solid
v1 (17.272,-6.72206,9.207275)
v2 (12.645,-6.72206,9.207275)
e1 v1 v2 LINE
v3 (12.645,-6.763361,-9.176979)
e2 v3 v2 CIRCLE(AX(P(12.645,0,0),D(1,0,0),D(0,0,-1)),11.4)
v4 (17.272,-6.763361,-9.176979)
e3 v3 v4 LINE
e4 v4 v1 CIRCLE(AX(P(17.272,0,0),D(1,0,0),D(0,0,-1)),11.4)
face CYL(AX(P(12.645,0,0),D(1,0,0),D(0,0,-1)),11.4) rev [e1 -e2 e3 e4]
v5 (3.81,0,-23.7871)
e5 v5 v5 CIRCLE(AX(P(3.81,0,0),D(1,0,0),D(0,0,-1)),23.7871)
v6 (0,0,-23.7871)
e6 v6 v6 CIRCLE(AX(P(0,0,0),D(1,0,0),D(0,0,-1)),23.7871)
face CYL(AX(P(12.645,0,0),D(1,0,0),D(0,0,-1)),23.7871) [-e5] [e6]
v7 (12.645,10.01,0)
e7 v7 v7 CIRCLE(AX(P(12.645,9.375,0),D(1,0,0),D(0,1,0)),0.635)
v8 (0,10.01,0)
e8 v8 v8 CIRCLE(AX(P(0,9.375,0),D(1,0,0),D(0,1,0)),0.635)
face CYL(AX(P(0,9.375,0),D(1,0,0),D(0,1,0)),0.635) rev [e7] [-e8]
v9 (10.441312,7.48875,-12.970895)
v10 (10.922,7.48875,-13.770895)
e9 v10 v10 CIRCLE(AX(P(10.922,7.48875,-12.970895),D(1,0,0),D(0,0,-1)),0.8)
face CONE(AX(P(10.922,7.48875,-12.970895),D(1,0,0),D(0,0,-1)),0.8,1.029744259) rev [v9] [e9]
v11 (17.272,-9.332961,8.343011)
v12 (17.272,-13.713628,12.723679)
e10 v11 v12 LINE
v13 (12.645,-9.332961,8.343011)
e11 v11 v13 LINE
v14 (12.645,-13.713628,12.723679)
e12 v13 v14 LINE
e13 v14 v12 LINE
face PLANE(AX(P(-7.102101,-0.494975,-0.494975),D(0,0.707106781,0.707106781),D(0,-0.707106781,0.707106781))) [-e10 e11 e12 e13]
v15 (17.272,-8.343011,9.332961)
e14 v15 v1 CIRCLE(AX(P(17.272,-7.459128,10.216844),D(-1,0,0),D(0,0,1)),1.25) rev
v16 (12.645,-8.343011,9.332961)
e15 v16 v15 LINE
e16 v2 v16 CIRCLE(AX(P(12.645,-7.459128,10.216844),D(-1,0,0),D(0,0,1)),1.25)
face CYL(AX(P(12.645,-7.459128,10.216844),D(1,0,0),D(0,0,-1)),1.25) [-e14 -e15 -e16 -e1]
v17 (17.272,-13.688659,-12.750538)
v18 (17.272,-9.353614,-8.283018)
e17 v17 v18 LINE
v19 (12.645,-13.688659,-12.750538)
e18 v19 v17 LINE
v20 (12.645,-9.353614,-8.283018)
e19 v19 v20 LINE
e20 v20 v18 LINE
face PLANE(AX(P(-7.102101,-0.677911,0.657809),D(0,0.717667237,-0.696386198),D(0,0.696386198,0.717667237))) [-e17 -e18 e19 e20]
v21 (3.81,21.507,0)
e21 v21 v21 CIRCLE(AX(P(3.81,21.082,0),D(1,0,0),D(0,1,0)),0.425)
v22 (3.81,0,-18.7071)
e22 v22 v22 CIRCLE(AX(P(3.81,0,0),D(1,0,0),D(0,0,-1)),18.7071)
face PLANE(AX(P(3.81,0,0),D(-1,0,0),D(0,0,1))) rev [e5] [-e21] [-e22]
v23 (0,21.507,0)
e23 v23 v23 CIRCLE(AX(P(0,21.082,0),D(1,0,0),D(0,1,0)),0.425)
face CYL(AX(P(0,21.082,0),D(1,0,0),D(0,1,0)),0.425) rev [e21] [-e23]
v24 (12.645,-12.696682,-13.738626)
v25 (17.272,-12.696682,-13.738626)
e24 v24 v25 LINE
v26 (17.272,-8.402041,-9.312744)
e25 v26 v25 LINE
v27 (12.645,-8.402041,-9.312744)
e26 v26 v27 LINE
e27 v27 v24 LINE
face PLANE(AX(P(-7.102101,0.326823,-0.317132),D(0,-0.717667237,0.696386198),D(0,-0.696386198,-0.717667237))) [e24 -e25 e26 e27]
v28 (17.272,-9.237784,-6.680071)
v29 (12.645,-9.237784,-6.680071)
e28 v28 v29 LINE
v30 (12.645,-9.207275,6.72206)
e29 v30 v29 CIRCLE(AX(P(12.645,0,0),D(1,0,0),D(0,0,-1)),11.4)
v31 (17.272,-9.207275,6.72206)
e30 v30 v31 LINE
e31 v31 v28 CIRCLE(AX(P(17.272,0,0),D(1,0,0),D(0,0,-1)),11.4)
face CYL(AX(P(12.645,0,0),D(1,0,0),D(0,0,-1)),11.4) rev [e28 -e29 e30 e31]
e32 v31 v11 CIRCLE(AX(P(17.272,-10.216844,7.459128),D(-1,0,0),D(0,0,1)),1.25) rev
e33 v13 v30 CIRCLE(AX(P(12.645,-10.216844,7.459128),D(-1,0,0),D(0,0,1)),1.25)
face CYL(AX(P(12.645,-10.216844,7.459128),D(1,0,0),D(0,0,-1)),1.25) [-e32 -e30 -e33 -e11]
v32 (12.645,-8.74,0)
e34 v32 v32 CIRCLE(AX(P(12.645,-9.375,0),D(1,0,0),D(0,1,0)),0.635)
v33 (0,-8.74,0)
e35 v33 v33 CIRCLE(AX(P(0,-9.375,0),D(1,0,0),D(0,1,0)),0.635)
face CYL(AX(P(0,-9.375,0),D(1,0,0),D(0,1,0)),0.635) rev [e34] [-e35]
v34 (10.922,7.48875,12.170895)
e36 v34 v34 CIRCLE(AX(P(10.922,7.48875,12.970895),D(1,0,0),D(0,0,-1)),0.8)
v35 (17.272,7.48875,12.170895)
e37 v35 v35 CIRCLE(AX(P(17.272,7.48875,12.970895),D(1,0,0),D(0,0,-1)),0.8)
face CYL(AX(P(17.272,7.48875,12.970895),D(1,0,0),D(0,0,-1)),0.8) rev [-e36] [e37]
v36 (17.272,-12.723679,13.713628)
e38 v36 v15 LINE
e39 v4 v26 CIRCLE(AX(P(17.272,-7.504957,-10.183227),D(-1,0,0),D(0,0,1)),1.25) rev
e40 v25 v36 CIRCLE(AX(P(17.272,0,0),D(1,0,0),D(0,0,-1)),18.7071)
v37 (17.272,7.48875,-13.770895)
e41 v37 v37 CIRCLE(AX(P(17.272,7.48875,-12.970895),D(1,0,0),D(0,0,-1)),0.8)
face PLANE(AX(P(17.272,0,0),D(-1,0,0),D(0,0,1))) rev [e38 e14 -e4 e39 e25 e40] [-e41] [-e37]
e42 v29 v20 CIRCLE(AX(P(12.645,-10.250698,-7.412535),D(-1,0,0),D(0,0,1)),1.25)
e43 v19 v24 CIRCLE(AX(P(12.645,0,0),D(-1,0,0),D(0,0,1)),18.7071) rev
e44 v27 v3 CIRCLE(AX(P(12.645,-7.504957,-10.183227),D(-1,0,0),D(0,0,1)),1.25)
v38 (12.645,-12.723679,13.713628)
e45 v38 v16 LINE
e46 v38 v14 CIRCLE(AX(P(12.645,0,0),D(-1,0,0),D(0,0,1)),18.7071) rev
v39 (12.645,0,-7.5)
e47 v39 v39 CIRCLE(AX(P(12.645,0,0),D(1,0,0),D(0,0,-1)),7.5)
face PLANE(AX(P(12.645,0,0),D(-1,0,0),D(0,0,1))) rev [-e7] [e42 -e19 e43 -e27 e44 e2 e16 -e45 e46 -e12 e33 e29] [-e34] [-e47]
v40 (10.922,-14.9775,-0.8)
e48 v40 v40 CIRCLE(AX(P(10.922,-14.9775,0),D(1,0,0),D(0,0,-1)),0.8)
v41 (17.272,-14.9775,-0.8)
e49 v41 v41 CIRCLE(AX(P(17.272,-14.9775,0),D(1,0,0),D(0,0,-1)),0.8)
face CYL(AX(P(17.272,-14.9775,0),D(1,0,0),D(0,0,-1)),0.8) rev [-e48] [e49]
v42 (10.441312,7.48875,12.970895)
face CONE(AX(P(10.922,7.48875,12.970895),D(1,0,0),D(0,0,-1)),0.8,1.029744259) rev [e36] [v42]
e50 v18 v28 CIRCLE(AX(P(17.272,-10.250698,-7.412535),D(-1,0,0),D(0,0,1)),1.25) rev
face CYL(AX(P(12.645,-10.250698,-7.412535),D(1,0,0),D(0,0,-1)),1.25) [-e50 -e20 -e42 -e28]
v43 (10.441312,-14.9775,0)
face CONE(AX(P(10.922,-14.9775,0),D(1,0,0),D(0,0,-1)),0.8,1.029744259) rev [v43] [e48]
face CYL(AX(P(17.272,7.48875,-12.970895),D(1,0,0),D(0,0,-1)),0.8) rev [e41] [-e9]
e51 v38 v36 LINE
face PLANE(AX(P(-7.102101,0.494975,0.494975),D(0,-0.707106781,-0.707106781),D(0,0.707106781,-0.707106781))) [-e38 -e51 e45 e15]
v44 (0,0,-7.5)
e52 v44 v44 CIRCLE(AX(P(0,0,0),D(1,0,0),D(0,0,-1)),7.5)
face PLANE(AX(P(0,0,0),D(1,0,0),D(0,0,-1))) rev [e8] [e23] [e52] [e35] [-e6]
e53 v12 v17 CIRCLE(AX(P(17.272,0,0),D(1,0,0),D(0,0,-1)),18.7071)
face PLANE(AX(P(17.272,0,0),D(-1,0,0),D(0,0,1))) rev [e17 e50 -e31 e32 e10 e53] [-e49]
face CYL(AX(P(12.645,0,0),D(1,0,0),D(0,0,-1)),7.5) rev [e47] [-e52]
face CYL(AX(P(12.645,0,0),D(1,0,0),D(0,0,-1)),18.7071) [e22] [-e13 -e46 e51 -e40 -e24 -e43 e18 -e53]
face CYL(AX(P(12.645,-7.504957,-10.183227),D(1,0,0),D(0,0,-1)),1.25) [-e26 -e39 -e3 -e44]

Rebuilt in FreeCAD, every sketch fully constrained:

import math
import FreeCAD as App
import Part
import Sketcher
from FreeCAD import Vector
Q = App.Units.Quantity


def edges_at(feature, points):
    """Names of the edges that pass closest to the given points."""
    edges = feature.Shape.Edges
    near = lambda p: min(range(len(edges)), key=lambda i: edges[i].distToShape(Part.Vertex(*p))[0])
    return sorted({f"Edge{near(p) + 1}" for p in points})

doc = App.newDocument("Part")
body = doc.addObject("PartDesign::Body", "Body")

sketch1 = body.newObject("Sketcher::SketchObject", "Sketch")
sketch1.AttachmentSupport = (doc.getObject("XY_Plane"), [""])
sketch1.MapMode = "FlatFace"
sketch1.addGeometry(Part.LineSegment(Vector(0, 23.8, 0), Vector(0, 7.5, 0)), False)
sketch1.addGeometry(Part.LineSegment(Vector(0, 7.5, 0), Vector(12.6, 7.5, 0)), False)
sketch1.addGeometry(Part.LineSegment(Vector(12.6, 7.5, 0), Vector(12.6, 11.4, 0)), False)
sketch1.addGeometry(Part.LineSegment(Vector(12.6, 11.4, 0), Vector(17.3, 11.4, 0)), False)
sketch1.addGeometry(Part.LineSegment(Vector(17.3, 11.4, 0), Vector(17.3, 18.7, 0)), False)
sketch1.addGeometry(Part.LineSegment(Vector(17.3, 18.7, 0), Vector(3.8, 18.7, 0)), False)
sketch1.addGeometry(Part.LineSegment(Vector(3.8, 18.7, 0), Vector(3.8, 23.8, 0)), False)
sketch1.addGeometry(Part.LineSegment(Vector(3.8, 23.8, 0), Vector(0, 23.8, 0)), False)
sketch1.addConstraint(Sketcher.Constraint("Coincident", 0, 2, 1, 1))
sketch1.addConstraint(Sketcher.Constraint("Coincident", 1, 2, 2, 1))
sketch1.addConstraint(Sketcher.Constraint("Coincident", 2, 2, 3, 1))
sketch1.addConstraint(Sketcher.Constraint("Coincident", 3, 2, 4, 1))
sketch1.addConstraint(Sketcher.Constraint("Coincident", 4, 2, 5, 1))
sketch1.addConstraint(Sketcher.Constraint("Coincident", 5, 2, 6, 1))
sketch1.addConstraint(Sketcher.Constraint("Coincident", 6, 2, 7, 1))
sketch1.addConstraint(Sketcher.Constraint("Coincident", 7, 2, 0, 1))
sketch1.addConstraint(Sketcher.Constraint("Vertical", 0))
sketch1.addConstraint(Sketcher.Constraint("Horizontal", 1))
sketch1.addConstraint(Sketcher.Constraint("Vertical", 2))
sketch1.addConstraint(Sketcher.Constraint("Horizontal", 3))
sketch1.addConstraint(Sketcher.Constraint("Vertical", 4))
sketch1.addConstraint(Sketcher.Constraint("Horizontal", 5))
sketch1.addConstraint(Sketcher.Constraint("Vertical", 6))
sketch1.addConstraint(Sketcher.Constraint("Horizontal", 7))
sketch1.addConstraint(Sketcher.Constraint("PointOnObject", 0, 2, -2))
sketch1.addConstraint(Sketcher.Constraint("DistanceY", 6, 1, 6, 2, Q("0.2 in")))
sketch1.addConstraint(Sketcher.Constraint("DistanceX", 5, 2, 5, 1, Q("0.53 in")))
sketch1.addConstraint(Sketcher.Constraint("DistanceX", 7, 2, 7, 1, Q("0.15 in")))
sketch1.addConstraint(Sketcher.Constraint("DistanceX", 1, 1, 1, 2, 12.645))
sketch1.addConstraint(Sketcher.Constraint("DistanceY", 0, 2, 0, 1, 16.2871))
sketch1.addConstraint(Sketcher.Constraint("DistanceY", 2, 1, 2, 2, 3.9))
sketch1.addConstraint(Sketcher.Constraint("DistanceY", -1, 1, 4, 2, Q("0.7365 in")))
revolution = body.newObject("PartDesign::Revolution", "Revolution")
revolution.Profile = sketch1
revolution.ReferenceAxis = (sketch1, ["H_Axis"])
revolution.Angle = 360

sketch2 = body.newObject("Sketcher::SketchObject", "Sketch001")
sketch2.AttachmentSupport = (doc.getObject("YZ_Plane"), [""])
sketch2.MapMode = "FlatFace"
sketch2.AttachmentOffset = App.Placement(Vector(0, 0, 0.68 * 25.4), App.Rotation())
sketch2.addGeometry(Part.LineSegment(Vector(-0.68, 0.66, 0), Vector(0, 0, 0)), False)
sketch2.addGeometry(Part.LineSegment(Vector(0, 0, 0), Vector(0.49, 0.49, 0)), False)
sketch2.addGeometry(Part.LineSegment(Vector(0.49, 0.49, 0), Vector(-12.72, 13.71, 0)), False)
sketch2.addGeometry(Part.ArcOfCircle(Part.Circle(Vector(0, 0, 0), Vector(0, 0, 1), 18.71), math.radians(132.86), math.radians(135)), False)
sketch2.addGeometry(Part.ArcOfCircle(Part.Circle(Vector(0, 0, 0), Vector(0, 0, 1), 18.71), math.radians(135), math.radians(137.14)), False)
sketch2.addGeometry(Part.LineSegment(Vector(-13.71, 12.72, 0), Vector(-8.54, 7.55, 0)), False)
sketch2.addGeometry(Part.LineSegment(Vector(-8.54, 7.55, 0), Vector(-1.16, 0.17, 0)), False)
sketch2.addGeometry(Part.LineSegment(Vector(-1.16, 0.17, 0), Vector(-0.68, 0.66, 0)), False)
sketch2.addGeometry(Part.LineSegment(Vector(-12.7, -13.74, 0), Vector(-7.61, -8.49, 0)), False)
sketch2.addGeometry(Part.LineSegment(Vector(-7.61, -8.49, 0), Vector(0.33, -0.32, 0)), False)
sketch2.addGeometry(Part.LineSegment(Vector(0.33, -0.32, 0), Vector(0, 0, 0)), False)
sketch2.addGeometry(Part.LineSegment(Vector(0, 0, 0), Vector(-0.49, -0.49, 0)), False)
sketch2.addGeometry(Part.LineSegment(Vector(-0.49, -0.49, 0), Vector(-1.16, 0.17, 0)), False)
sketch2.addGeometry(Part.LineSegment(Vector(-1.16, 0.17, 0), Vector(-8.59, -7.5, 0)), False)
sketch2.addGeometry(Part.LineSegment(Vector(-8.59, -7.5, 0), Vector(-13.69, -12.75, 0)), False)
sketch2.addGeometry(Part.ArcOfCircle(Part.Circle(Vector(0, 0, 0), Vector(0, 0, 1), 18.71), math.radians(-137.03), math.radians(-134.14)), False)
sketch2.addGeometry(Part.ArcOfCircle(Part.Circle(Vector(0, 0, 0), Vector(0, 0, 1), 18.71), math.radians(-134.14), math.radians(-132.74)), False)
sketch2.addGeometry(Part.Circle(Vector(-14.98, 0, 0), Vector(0, 0, 1), 0.32), False)
sketch2.addGeometry(Part.Circle(Vector(7.49, 12.97, 0), Vector(0, 0, 1), 0.32), False)
sketch2.addGeometry(Part.Circle(Vector(7.49, -12.97, 0), Vector(0, 0, 1), 0.32), False)
sketch2.addConstraint(Sketcher.Constraint("Coincident", 0, 2, 1, 1))
sketch2.addConstraint(Sketcher.Constraint("Coincident", 1, 2, 2, 1))
sketch2.addConstraint(Sketcher.Constraint("Coincident", 2, 2, 3, 1))
sketch2.addConstraint(Sketcher.Constraint("Tangent", 3, 2, 4, 1))
sketch2.addConstraint(Sketcher.Constraint("Coincident", 4, 2, 5, 1))
sketch2.addConstraint(Sketcher.Constraint("Coincident", 5, 2, 6, 1))
sketch2.addConstraint(Sketcher.Constraint("Coincident", 6, 2, 7, 1))
sketch2.addConstraint(Sketcher.Constraint("Coincident", 7, 2, 0, 1))
sketch2.addConstraint(Sketcher.Constraint("Coincident", 8, 2, 9, 1))
sketch2.addConstraint(Sketcher.Constraint("Coincident", 9, 2, 10, 1))
sketch2.addConstraint(Sketcher.Constraint("Coincident", 10, 2, 11, 1))
sketch2.addConstraint(Sketcher.Constraint("Coincident", 11, 2, 12, 1))
sketch2.addConstraint(Sketcher.Constraint("Coincident", 12, 2, 13, 1))
sketch2.addConstraint(Sketcher.Constraint("Coincident", 13, 2, 14, 1))
sketch2.addConstraint(Sketcher.Constraint("Coincident", 14, 2, 15, 1))
sketch2.addConstraint(Sketcher.Constraint("Tangent", 15, 2, 16, 1))
sketch2.addConstraint(Sketcher.Constraint("Coincident", 16, 2, 8, 1))
sketch2.addConstraint(Sketcher.Constraint("Coincident", 3, 3, -1, 1))
sketch2.addConstraint(Sketcher.Constraint("Coincident", 15, 3, -1, 1))
sketch2.addConstraint(Sketcher.Constraint("Coincident", 0, 2, -1, 1))
sketch2.addConstraint(Sketcher.Constraint("Coincident", 10, 2, -1, 1))
sketch2.addConstraint(Sketcher.Constraint("Coincident", 12, 2, 6, 2))
sketch2.addConstraint(Sketcher.Constraint("Equal", 4, 15))
sketch2.addConstraint(Sketcher.Constraint("Equal", 3, 16))
sketch2.addConstraint(Sketcher.Constraint("Equal", 17, 18))
sketch2.addConstraint(Sketcher.Constraint("Equal", 18, 19))
sketch2.addConstraint(Sketcher.Constraint("Symmetric", 1, 2, 11, 2, -1, 1))
sketch2.addConstraint(Sketcher.Constraint("Symmetric", 18, 3, 19, 3, -1))
sketch2.addConstraint(Sketcher.Constraint("PointOnObject", 17, 3, -1))
sketch2.addConstraint(Sketcher.Constraint("Perpendicular", 1, 2))
sketch2.addConstraint(Sketcher.Constraint("Parallel", 2, 5))
sketch2.addConstraint(Sketcher.Constraint("Parallel", 5, 6))
sketch2.addConstraint(Sketcher.Constraint("Perpendicular", 0, 7))
sketch2.addConstraint(Sketcher.Constraint("Parallel", 7, 8))
sketch2.addConstraint(Sketcher.Constraint("Parallel", 8, 9))
sketch2.addConstraint(Sketcher.Constraint("Perpendicular", 9, 10))
sketch2.addConstraint(Sketcher.Constraint("Perpendicular", 11, 12))
sketch2.addConstraint(Sketcher.Constraint("Perpendicular", 10, 13))
sketch2.addConstraint(Sketcher.Constraint("Parallel", 13, 14))
sketch2.addConstraint(Sketcher.Constraint("Angle", 1, Q("45 deg")))
sketch2.addConstraint(Sketcher.Constraint("Radius", 3, Q("0.7364998 in")))
sketch2.addConstraint(Sketcher.Constraint("Radius", 4, Q("0.7365 in")))
sketch2.addConstraint(Sketcher.Constraint("Diameter", 17, 0.63))
sketch2.addConstraint(Sketcher.Constraint("Distance", 1, 0.7))
sketch2.addConstraint(Sketcher.Constraint("Distance", 9, 11.3909))
sketch2.addConstraint(Sketcher.Constraint("DistanceX", 17, 3, -1, 1, 14.9775))
sketch2.addConstraint(Sketcher.Constraint("DistanceY", 16, 3, 18, 3, 12.970899))
sketch2.addConstraint(Sketcher.Constraint("Distance", 5, 7.31551))
sketch2.addConstraint(Sketcher.Constraint("Distance", 14, 7.322438))
sketch2.addConstraint(Sketcher.Constraint("DistanceX", -1, 1, 18, 3, 7.48875))
sketch2.addConstraint(Sketcher.Constraint("DistanceX", 7, 2, -1, 1, 0.677911))
sketch2.addConstraint(Sketcher.Constraint("DistanceY", -1, 1, 7, 2, 0.657809))
sketch2.addConstraint(Sketcher.Constraint("DistanceY", 8, 2, -1, 1, 8.492008))
sketch2.addConstraint(Sketcher.Constraint("DistanceX", 3, 2, 2, 2, 0.504239))
sketch2.addConstraint(Sketcher.Constraint("DistanceY", 15, 2, 13, 2, 5.930009))
pocket1 = body.newObject("PartDesign::Pocket", "Pocket")
pocket1.Profile = sketch2
pocket1.Length = 4.627

sketch3 = body.newObject("Sketcher::SketchObject", "Sketch002")
sketch3.AttachmentSupport = (doc.getObject("YZ_Plane"), [""])
sketch3.MapMode = "FlatFace"
sketch3.AttachmentOffset = App.Placement(Vector(0, 0, 0.15 * 25.4), App.Rotation())
sketch3.addGeometry(Part.Circle(Vector(21.08, 0, 0), Vector(0, 0, 1), 0.42), False)
sketch3.addConstraint(Sketcher.Constraint("PointOnObject", 0, 3, -1))
sketch3.addConstraint(Sketcher.Constraint("Diameter", 0, 0.85))
sketch3.addConstraint(Sketcher.Constraint("DistanceX", -1, 1, 0, 3, Q("0.83 in")))
pocket2 = body.newObject("PartDesign::Pocket", "Pocket001")
pocket2.Profile = sketch3
pocket2.Type = "ThroughAll"

sketch4 = body.newObject("Sketcher::SketchObject", "Sketch003")
sketch4.AttachmentSupport = (doc.getObject("YZ_Plane"), [""])
sketch4.MapMode = "FlatFace"
sketch4.AttachmentOffset = App.Placement(Vector(0, 0, 12.645), App.Rotation())
sketch4.addGeometry(Part.Circle(Vector(9.4, 0, 0), Vector(0, 0, 1), 0.6), False)
sketch4.addGeometry(Part.Circle(Vector(-9.4, 0, 0), Vector(0, 0, 1), 0.6), False)
sketch4.addConstraint(Sketcher.Constraint("Equal", 0, 1))
sketch4.addConstraint(Sketcher.Constraint("Symmetric", 0, 3, 1, 3, -1, 1))
sketch4.addConstraint(Sketcher.Constraint("PointOnObject", 0, 3, -1))
sketch4.addConstraint(Sketcher.Constraint("Diameter", 0, Q("0.05 in")))
sketch4.addConstraint(Sketcher.Constraint("DistanceX", -1, 1, 0, 3, 9.375))
pocket3 = body.newObject("PartDesign::Pocket", "Pocket002")
pocket3.Profile = sketch4
pocket3.Type = "ThroughAll"
doc.recompute()

fillet = body.newObject("PartDesign::Fillet", "Fillet")
fillet.Base = (pocket3, edges_at(pocket3, [
    (14.959, -7.551, 8.541),
    (14.959, -8.541, 7.551),
    (14.959, -7.606, -8.492),
    (14.959, -8.589, -7.495),
]))
fillet.Radius = 1.25

sketch5 = body.newObject("Sketcher::SketchObject", "Sketch004")
sketch5.AttachmentSupport = (doc.getObject("YZ_Plane"), [""])
sketch5.MapMode = "FlatFace"
sketch5.AttachmentOffset = App.Placement(Vector(0, 0, 0.68 * 25.4), App.Rotation())
sketch5.addGeometry(Part.Circle(Vector(7.5, 13, 0), Vector(0, 0, 1), 0.8), False)
sketch5.addGeometry(Part.Circle(Vector(7.5, -13, 0), Vector(0, 0, 1), 0.8), False)
sketch5.addGeometry(Part.Circle(Vector(-15, 0, 0), Vector(0, 0, 1), 0.8), False)
sketch5.addConstraint(Sketcher.Constraint("Equal", 0, 1))
sketch5.addConstraint(Sketcher.Constraint("Equal", 1, 2))
sketch5.addConstraint(Sketcher.Constraint("Symmetric", 0, 3, 1, 3, -1))
sketch5.addConstraint(Sketcher.Constraint("PointOnObject", 2, 3, -1))
sketch5.addConstraint(Sketcher.Constraint("Diameter", 0, 1.6))
sketch5.addConstraint(Sketcher.Constraint("DistanceX", 2, 3, -1, 1, 14.9775))
sketch5.addConstraint(Sketcher.Constraint("DistanceX", -1, 1, 0, 3, 7.48875))
sketch5.addConstraint(Sketcher.Constraint("DistanceY", 1, 3, 0, 3, 25.941791))
doc.recompute()
hole = body.newObject("PartDesign::Hole", "Hole")
hole.Profile = sketch5
hole.ThreadType = "None"
hole.Diameter = 1.6
hole.DepthType = "Dimension"
hole.Depth = Q("0.25 in")
hole.DrillPoint = "Angled"
hole.DrillPointAngle = 118

doc.recompute()
